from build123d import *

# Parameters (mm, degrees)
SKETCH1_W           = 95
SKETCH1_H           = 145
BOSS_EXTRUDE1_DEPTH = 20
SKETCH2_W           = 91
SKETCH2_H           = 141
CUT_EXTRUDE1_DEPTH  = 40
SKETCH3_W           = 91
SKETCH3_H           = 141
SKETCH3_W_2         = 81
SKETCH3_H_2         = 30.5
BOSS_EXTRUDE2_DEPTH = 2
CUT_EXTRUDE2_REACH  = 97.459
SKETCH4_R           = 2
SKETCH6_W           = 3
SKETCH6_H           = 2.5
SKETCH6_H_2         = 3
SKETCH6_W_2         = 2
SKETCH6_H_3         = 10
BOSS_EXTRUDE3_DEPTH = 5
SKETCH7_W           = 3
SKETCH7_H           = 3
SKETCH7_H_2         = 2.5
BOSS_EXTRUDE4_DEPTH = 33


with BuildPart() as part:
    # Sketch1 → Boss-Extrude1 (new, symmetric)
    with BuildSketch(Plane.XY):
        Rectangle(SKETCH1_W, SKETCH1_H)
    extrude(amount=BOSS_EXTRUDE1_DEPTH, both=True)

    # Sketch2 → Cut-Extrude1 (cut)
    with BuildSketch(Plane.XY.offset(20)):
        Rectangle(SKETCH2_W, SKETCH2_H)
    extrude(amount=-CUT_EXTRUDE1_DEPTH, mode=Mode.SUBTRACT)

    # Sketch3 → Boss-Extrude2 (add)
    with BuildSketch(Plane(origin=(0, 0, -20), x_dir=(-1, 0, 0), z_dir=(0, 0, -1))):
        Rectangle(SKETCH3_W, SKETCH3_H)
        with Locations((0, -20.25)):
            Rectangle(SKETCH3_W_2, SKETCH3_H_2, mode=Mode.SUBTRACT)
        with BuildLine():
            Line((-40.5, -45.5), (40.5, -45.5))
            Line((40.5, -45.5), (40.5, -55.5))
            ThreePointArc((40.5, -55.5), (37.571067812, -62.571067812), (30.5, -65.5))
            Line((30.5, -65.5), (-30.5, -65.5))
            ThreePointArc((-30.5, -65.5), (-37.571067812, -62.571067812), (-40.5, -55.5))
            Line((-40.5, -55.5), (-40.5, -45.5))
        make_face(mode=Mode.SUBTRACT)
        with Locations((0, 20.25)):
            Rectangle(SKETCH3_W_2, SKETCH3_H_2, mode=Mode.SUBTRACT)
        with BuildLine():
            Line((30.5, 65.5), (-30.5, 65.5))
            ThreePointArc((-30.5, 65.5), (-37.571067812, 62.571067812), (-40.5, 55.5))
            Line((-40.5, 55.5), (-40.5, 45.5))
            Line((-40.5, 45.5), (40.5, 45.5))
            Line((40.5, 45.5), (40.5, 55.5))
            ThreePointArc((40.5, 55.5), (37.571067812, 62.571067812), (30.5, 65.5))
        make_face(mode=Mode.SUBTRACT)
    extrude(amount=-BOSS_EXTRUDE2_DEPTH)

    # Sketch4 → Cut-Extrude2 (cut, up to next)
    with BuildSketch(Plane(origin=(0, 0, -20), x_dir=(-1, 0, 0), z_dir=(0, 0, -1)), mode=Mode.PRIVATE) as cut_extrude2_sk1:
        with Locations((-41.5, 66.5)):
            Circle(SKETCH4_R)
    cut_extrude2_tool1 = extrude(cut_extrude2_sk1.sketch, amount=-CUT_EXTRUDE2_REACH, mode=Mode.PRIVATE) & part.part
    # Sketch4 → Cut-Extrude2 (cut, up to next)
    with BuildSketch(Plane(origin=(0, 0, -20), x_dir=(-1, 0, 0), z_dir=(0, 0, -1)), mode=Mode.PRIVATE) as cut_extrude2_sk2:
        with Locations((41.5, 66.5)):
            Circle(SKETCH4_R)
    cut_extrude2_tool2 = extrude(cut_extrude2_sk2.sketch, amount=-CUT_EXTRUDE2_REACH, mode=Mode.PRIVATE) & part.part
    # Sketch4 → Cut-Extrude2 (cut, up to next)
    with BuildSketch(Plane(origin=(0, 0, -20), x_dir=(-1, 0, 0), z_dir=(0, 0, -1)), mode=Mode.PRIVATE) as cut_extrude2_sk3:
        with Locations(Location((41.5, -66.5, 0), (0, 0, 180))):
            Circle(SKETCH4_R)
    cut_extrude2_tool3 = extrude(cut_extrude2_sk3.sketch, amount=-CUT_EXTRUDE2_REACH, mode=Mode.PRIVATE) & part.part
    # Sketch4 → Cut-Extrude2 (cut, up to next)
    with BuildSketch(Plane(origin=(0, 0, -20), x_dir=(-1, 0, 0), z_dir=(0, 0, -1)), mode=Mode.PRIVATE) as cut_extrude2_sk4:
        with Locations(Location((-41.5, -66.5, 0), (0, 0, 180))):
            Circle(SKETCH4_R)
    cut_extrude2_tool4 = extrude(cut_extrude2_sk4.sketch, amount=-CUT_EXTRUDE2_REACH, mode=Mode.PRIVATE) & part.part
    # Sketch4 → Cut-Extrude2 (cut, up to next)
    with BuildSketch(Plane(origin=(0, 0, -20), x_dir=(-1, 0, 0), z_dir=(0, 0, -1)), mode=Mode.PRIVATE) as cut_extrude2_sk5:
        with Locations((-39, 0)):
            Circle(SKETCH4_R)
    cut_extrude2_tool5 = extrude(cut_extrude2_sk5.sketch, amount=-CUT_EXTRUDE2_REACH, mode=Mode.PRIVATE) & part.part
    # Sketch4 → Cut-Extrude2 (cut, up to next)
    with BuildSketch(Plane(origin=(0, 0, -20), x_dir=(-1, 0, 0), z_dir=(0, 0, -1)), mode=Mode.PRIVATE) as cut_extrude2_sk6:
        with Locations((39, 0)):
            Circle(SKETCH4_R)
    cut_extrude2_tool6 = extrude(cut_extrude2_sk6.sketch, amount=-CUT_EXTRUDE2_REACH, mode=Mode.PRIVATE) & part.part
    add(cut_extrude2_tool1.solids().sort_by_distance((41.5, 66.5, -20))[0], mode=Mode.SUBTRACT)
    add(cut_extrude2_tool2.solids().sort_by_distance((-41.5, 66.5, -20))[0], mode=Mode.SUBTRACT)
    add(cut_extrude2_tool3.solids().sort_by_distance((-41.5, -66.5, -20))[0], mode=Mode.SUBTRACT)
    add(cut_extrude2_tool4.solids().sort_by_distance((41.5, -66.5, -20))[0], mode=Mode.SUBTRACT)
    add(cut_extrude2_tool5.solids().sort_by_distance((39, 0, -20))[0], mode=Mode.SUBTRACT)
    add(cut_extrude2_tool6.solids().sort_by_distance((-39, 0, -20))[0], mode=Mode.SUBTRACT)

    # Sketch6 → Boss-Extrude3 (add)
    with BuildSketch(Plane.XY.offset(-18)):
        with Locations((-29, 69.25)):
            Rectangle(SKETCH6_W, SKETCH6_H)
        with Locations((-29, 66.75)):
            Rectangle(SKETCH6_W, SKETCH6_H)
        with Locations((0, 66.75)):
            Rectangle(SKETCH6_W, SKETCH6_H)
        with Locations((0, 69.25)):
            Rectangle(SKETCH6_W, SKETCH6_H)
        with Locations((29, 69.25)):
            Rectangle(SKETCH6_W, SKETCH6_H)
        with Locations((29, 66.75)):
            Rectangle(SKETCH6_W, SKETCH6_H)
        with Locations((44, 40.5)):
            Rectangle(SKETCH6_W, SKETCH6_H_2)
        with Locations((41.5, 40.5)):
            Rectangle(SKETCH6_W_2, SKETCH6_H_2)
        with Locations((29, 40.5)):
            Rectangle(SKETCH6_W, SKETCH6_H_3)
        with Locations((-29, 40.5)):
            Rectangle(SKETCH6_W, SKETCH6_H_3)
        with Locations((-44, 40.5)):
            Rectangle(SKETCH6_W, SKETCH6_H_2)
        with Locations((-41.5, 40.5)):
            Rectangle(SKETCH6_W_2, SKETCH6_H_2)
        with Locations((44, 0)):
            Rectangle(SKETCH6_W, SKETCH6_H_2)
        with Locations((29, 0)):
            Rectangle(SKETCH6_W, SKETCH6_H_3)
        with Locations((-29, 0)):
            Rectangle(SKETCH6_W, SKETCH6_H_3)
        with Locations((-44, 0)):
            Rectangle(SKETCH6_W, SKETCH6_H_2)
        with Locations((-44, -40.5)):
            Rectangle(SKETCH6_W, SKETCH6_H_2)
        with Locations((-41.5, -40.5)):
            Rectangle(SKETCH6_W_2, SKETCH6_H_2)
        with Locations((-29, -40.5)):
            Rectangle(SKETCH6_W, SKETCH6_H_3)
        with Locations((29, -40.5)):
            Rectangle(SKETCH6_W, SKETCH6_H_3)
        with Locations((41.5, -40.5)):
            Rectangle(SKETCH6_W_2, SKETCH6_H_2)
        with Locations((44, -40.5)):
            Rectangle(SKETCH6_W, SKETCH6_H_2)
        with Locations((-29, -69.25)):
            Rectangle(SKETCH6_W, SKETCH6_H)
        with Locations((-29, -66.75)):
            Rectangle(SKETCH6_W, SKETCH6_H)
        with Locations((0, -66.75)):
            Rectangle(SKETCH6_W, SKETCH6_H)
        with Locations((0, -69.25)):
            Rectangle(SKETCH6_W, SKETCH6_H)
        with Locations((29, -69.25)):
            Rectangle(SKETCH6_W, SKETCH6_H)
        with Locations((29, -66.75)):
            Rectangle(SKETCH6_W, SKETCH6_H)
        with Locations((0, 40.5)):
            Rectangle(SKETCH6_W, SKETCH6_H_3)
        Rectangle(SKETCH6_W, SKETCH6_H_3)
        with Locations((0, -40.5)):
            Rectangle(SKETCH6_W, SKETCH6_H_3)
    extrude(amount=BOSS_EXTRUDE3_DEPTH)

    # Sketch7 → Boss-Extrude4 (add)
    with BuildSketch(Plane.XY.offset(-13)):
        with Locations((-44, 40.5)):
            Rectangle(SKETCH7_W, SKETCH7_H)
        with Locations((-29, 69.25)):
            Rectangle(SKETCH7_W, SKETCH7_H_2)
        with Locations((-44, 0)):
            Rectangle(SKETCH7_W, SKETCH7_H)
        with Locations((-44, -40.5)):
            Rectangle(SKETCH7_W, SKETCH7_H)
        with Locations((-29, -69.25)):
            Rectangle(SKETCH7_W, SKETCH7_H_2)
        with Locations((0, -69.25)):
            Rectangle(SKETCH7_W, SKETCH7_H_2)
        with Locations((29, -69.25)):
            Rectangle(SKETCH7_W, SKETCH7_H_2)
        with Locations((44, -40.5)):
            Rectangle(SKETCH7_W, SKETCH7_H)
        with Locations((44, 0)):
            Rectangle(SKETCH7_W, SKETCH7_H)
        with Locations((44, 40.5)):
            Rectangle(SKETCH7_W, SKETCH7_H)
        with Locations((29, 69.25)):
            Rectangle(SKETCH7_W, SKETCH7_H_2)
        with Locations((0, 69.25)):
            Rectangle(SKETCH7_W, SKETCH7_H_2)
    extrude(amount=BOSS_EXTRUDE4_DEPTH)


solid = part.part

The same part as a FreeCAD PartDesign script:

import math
import FreeCAD as App
import Part
import Sketcher

V = App.Vector
Q = App.Units.Quantity

doc = App.newDocument("Part")
body = doc.addObject("PartDesign::Body", "Body")

# Sketch on XY plane
sketch1 = body.newObject("Sketcher::SketchObject", "Sketch")
sketch1.AttachmentSupport = (doc.getObject("XY_Plane"), [""])
sketch1.MapMode = "FlatFace"
sketch1.addGeometry([
    Part.LineSegment(V(-47.5, 72.5, 0), V(-47.5, -72.5, 0)),
    Part.LineSegment(V(-47.5, -72.5, 0), V(47.5, -72.5, 0)),
    Part.LineSegment(V(47.5, -72.5, 0), V(47.5, 72.5, 0)),
    Part.LineSegment(V(47.5, 72.5, 0), V(-47.5, 72.5, 0)),
], False)
sketch1.addConstraint([
    Sketcher.Constraint("Coincident", 0, 2, 1, 1),
    Sketcher.Constraint("Coincident", 1, 2, 2, 1),
    Sketcher.Constraint("Coincident", 2, 2, 3, 1),
    Sketcher.Constraint("Coincident", 3, 2, 0, 1),
    Sketcher.Constraint("Vertical", 0),
    Sketcher.Constraint("Horizontal", 1),
    Sketcher.Constraint("Vertical", 2),
    Sketcher.Constraint("Horizontal", 3),
    Sketcher.Constraint("Symmetric", 0, 2, 2, 2, -1, 1),
    Sketcher.Constraint("DistanceX", 1, 1, 1, 2, Q("95 mm")),
    Sketcher.Constraint("DistanceY", 0, 2, 0, 1, Q("145 mm")),
])
pad1 = body.newObject("PartDesign::Pad", "Pad")
pad1.Profile = sketch1
pad1.Length = 40
pad1.Midplane = True

# Sketch on XY plane
sketch2 = body.newObject("Sketcher::SketchObject", "Sketch001")
sketch2.AttachmentSupport = (doc.getObject("XY_Plane"), [""])
sketch2.MapMode = "FlatFace"
sketch2.AttachmentOffset = App.Placement(V(0, 0, 20), App.Rotation())
sketch2.addGeometry([
    Part.LineSegment(V(-45.5, 70.5, 0), V(-45.5, -70.5, 0)),
    Part.LineSegment(V(-45.5, -70.5, 0), V(45.5, -70.5, 0)),
    Part.LineSegment(V(45.5, -70.5, 0), V(45.5, 70.5, 0)),
    Part.LineSegment(V(45.5, 70.5, 0), V(-45.5, 70.5, 0)),
], False)
sketch2.addConstraint([
    Sketcher.Constraint("Coincident", 0, 2, 1, 1),
    Sketcher.Constraint("Coincident", 1, 2, 2, 1),
    Sketcher.Constraint("Coincident", 2, 2, 3, 1),
    Sketcher.Constraint("Coincident", 3, 2, 0, 1),
    Sketcher.Constraint("Vertical", 0),
    Sketcher.Constraint("Horizontal", 1),
    Sketcher.Constraint("Vertical", 2),
    Sketcher.Constraint("Horizontal", 3),
    Sketcher.Constraint("Symmetric", 0, 2, 2, 2, -1, 1),
    Sketcher.Constraint("DistanceX", 1, 1, 1, 2, Q("91 mm")),
    Sketcher.Constraint("DistanceY", 0, 2, 0, 1, Q("141 mm")),
])
pocket1 = body.newObject("PartDesign::Pocket", "Pocket")
pocket1.Profile = sketch2
pocket1.Length = 40

# Sketch on XY plane
sketch3 = body.newObject("Sketcher::SketchObject", "Sketch002")
sketch3.AttachmentSupport = (doc.getObject("XY_Plane"), [""])
sketch3.MapMode = "FlatFace"
sketch3.AttachmentOffset = App.Placement(V(0, 0, -20), App.Rotation())
sketch3.addGeometry([
    Part.LineSegment(V(45.5, 70.5, 0), V(45.5, -70.5, 0)),  # 0
    Part.LineSegment(V(45.5, -70.5, 0), V(-45.5, -70.5, 0)),  # 1
    Part.LineSegment(V(-45.5, -70.5, 0), V(-45.5, 70.5, 0)),  # 2
    Part.LineSegment(V(-45.5, 70.5, 0), V(45.5, 70.5, 0)),  # 3
    Part.LineSegment(V(40.5, -55.5, 0), V(40.5, -45.5, 0)),  # 4
    Part.LineSegment(V(40.5, -45.5, 0), V(-40.5, -45.5, 0)),  # 5
    Part.LineSegment(V(-40.5, -45.5, 0), V(-40.5, -55.5, 0)),  # 6
    Part.ArcOfCircle(Part.Circle(V(-30.5, -55.5, 0), V(0, 0, 1), 10), math.radians(180), math.radians(270)),  # 7
    Part.LineSegment(V(-30.5, -65.5, 0), V(30.5, -65.5, 0)),  # 8
    Part.ArcOfCircle(Part.Circle(V(30.5, -55.5, 0), V(0, 0, 1), 10), math.radians(-90), math.radians(0)),  # 9
    Part.LineSegment(V(-40.5, -35.5, 0), V(40.5, -35.5, 0)),  # 10
    Part.LineSegment(V(40.5, -35.5, 0), V(40.5, -5, 0)),  # 11
    Part.LineSegment(V(40.5, -5, 0), V(-40.5, -5, 0)),  # 12
    Part.LineSegment(V(-40.5, -5, 0), V(-40.5, -35.5, 0)),  # 13
    Part.LineSegment(V(-40.5, 5, 0), V(40.5, 5, 0)),  # 14
    Part.LineSegment(V(40.5, 5, 0), V(40.5, 35.5, 0)),  # 15
    Part.LineSegment(V(40.5, 35.5, 0), V(-40.5, 35.5, 0)),  # 16
    Part.LineSegment(V(-40.5, 35.5, 0), V(-40.5, 5, 0)),  # 17
    Part.LineSegment(V(30.5, 65.5, 0), V(-30.5, 65.5, 0)),  # 18
    Part.ArcOfCircle(Part.Circle(V(-30.5, 55.5, 0), V(0, 0, 1), 10), math.radians(90), math.radians(180)),  # 19
    Part.LineSegment(V(-40.5, 55.5, 0), V(-40.5, 45.5, 0)),  # 20
    Part.LineSegment(V(-40.5, 45.5, 0), V(40.5, 45.5, 0)),  # 21
    Part.LineSegment(V(40.5, 45.5, 0), V(40.5, 55.5, 0)),  # 22
    Part.ArcOfCircle(Part.Circle(V(30.5, 55.5, 0), V(0, 0, 1), 10), math.radians(0), math.radians(90)),  # 23
], False)
sketch3.addConstraint([
    Sketcher.Constraint("Coincident", 0, 2, 1, 1),
    Sketcher.Constraint("Coincident", 1, 2, 2, 1),
    Sketcher.Constraint("Coincident", 2, 2, 3, 1),
    Sketcher.Constraint("Coincident", 3, 2, 0, 1),
    Sketcher.Constraint("Coincident", 4, 2, 5, 1),
    Sketcher.Constraint("Coincident", 5, 2, 6, 1),
    Sketcher.Constraint("Tangent", 6, 2, 7, 1),
    Sketcher.Constraint("Tangent", 7, 2, 8, 1),
    Sketcher.Constraint("Tangent", 8, 2, 9, 1),
    Sketcher.Constraint("Tangent", 9, 2, 4, 1),
    Sketcher.Constraint("Coincident", 10, 2, 11, 1),
    Sketcher.Constraint("Coincident", 11, 2, 12, 1),
    Sketcher.Constraint("Coincident", 12, 2, 13, 1),
    Sketcher.Constraint("Coincident", 13, 2, 10, 1),
    Sketcher.Constraint("Coincident", 14, 2, 15, 1),
    Sketcher.Constraint("Coincident", 15, 2, 16, 1),
    Sketcher.Constraint("Coincident", 16, 2, 17, 1),
    Sketcher.Constraint("Coincident", 17, 2, 14, 1),
    Sketcher.Constraint("Tangent", 18, 2, 19, 1),
    Sketcher.Constraint("Tangent", 19, 2, 20, 1),
    Sketcher.Constraint("Coincident", 20, 2, 21, 1),
    Sketcher.Constraint("Coincident", 21, 2, 22, 1),
    Sketcher.Constraint("Tangent", 22, 2, 23, 1),
    Sketcher.Constraint("Tangent", 23, 2, 18, 1),
    Sketcher.Constraint("Vertical", 0),
    Sketcher.Constraint("Horizontal", 1),
    Sketcher.Constraint("Vertical", 2),
    Sketcher.Constraint("Horizontal", 3),
    Sketcher.Constraint("Vertical", 4),
    Sketcher.Constraint("Horizontal", 5),
    Sketcher.Constraint("Vertical", 6),
    Sketcher.Constraint("Horizontal", 8),
    Sketcher.Constraint("Horizontal", 10),
    Sketcher.Constraint("Vertical", 11),
    Sketcher.Constraint("Horizontal", 12),
    Sketcher.Constraint("Vertical", 13),
    Sketcher.Constraint("Horizontal", 14),
    Sketcher.Constraint("Vertical", 15),
    Sketcher.Constraint("Horizontal", 16),
    Sketcher.Constraint("Vertical", 17),
    Sketcher.Constraint("Horizontal", 18),
    Sketcher.Constraint("Vertical", 20),
    Sketcher.Constraint("Horizontal", 21),
    Sketcher.Constraint("Vertical", 22),
    Sketcher.Constraint("Equal", 7, 9),
    Sketcher.Constraint("Equal", 9, 19),
    Sketcher.Constraint("Equal", 19, 23),
    Sketcher.Constraint("Symmetric", 9, 3, 19, 3, -1, 1),
    Sketcher.Constraint("Symmetric", 0, 2, 2, 2, -1, 1),
    Sketcher.Constraint("Symmetric", 12, 2, 14, 2, -1, 1),
    Sketcher.Constraint("Symmetric", 10, 2, 16, 2, -1, 1),
    Sketcher.Constraint("Symmetric", 5, 2, 21, 2, -1, 1),
    Sketcher.Constraint("Vertical", 7, 3, 19, 3),
    Sketcher.Constraint("Vertical", 9, 2, 10, 2),
    Sketcher.Constraint("Vertical", 6, 2, 12, 2),
    Sketcher.Constraint("Radius", 7, Q("10 mm")),
    Sketcher.Constraint("DistanceX", 1, 2, 1, 1, Q("91 mm")),
    Sketcher.Constraint("DistanceX", 5, 2, 5, 1, Q("81 mm")),
    Sketcher.Constraint("DistanceY", 0, 2, 0, 1, Q("141 mm")),
    Sketcher.Constraint("DistanceY", 4, 1, 4, 2, Q("10 mm")),
    Sketcher.Constraint("DistanceY", 11, 1, 11, 2, Q("30.5 mm")),
    Sketcher.Constraint("DistanceY", 11, 2, -1, 1, Q("5 mm")),
    Sketcher.Constraint("DistanceY", 7, 3, 19, 3, Q("111 mm")),
])
pad2 = body.newObject("PartDesign::Pad", "Pad001")
pad2.Profile = sketch3
pad2.Length = 2

# Sketch on XY plane
sketch4 = body.newObject("Sketcher::SketchObject", "Sketch003")
sketch4.AttachmentSupport = (doc.getObject("XY_Plane"), [""])
sketch4.MapMode = "FlatFace"
sketch4.AttachmentOffset = App.Placement(V(0, 0, -20), App.Rotation())
sketch4.addGeometry(Part.Circle(V(41.5, 66.5, 0), V(0, 0, 1), 2), False)
sketch4.addConstraint([
    Sketcher.Constraint("Diameter", 0, Q("4 mm")),
    Sketcher.Constraint("DistanceX", -1, 1, 0, 3, Q("41.5 mm")),
    Sketcher.Constraint("DistanceY", -1, 1, 0, 3, Q("66.5 mm")),
])
pocket2 = body.newObject("PartDesign::Pocket", "Pocket001")
pocket2.Profile = sketch4
pocket2.Type = "UpToFirst"
pocket2.Reversed = True

# Sketch on XY plane
sketch5 = body.newObject("Sketcher::SketchObject", "Sketch004")
sketch5.AttachmentSupport = (doc.getObject("XY_Plane"), [""])
sketch5.MapMode = "FlatFace"
sketch5.AttachmentOffset = App.Placement(V(0, 0, -20), App.Rotation())
sketch5.addGeometry(Part.Circle(V(-41.5, 66.5, 0), V(0, 0, 1), 2), False)
sketch5.addConstraint([
    Sketcher.Constraint("Diameter", 0, Q("4 mm")),
    Sketcher.Constraint("DistanceX", 0, 3, -1, 1, Q("41.5 mm")),
    Sketcher.Constraint("DistanceY", -1, 1, 0, 3, Q("66.5 mm")),
])
pocket3 = body.newObject("PartDesign::Pocket", "Pocket002")
pocket3.Profile = sketch5
pocket3.Type = "UpToFirst"
pocket3.Reversed = True

# Sketch on XY plane
sketch6 = body.newObject("Sketcher::SketchObject", "Sketch005")
sketch6.AttachmentSupport = (doc.getObject("XY_Plane"), [""])
sketch6.MapMode = "FlatFace"
sketch6.AttachmentOffset = App.Placement(V(0, 0, -20), App.Rotation())
sketch6.addGeometry(Part.Circle(V(-41.5, -66.5, 0), V(0, 0, 1), 2), False)
sketch6.addConstraint([
    Sketcher.Constraint("Diameter", 0, Q("4 mm")),
    Sketcher.Constraint("DistanceX", 0, 3, -1, 1, Q("41.5 mm")),
    Sketcher.Constraint("DistanceY", 0, 3, -1, 1, Q("66.5 mm")),
])
pocket4 = body.newObject("PartDesign::Pocket", "Pocket003")
pocket4.Profile = sketch6
pocket4.Type = "UpToFirst"
pocket4.Reversed = True

# Sketch on XY plane
sketch7 = body.newObject("Sketcher::SketchObject", "Sketch006")
sketch7.AttachmentSupport = (doc.getObject("XY_Plane"), [""])
sketch7.MapMode = "FlatFace"
sketch7.AttachmentOffset = App.Placement(V(0, 0, -20), App.Rotation())
sketch7.addGeometry(Part.Circle(V(41.5, -66.5, 0), V(0, 0, 1), 2), False)
sketch7.addConstraint([
    Sketcher.Constraint("Diameter", 0, Q("4 mm")),
    Sketcher.Constraint("DistanceX", -1, 1, 0, 3, Q("41.5 mm")),
    Sketcher.Constraint("DistanceY", 0, 3, -1, 1, Q("66.5 mm")),
])
pocket5 = body.newObject("PartDesign::Pocket", "Pocket004")
pocket5.Profile = sketch7
pocket5.Type = "UpToFirst"
pocket5.Reversed = True

# Sketch on XY plane
sketch8 = body.newObject("Sketcher::SketchObject", "Sketch007")
sketch8.AttachmentSupport = (doc.getObject("XY_Plane"), [""])
sketch8.MapMode = "FlatFace"
sketch8.AttachmentOffset = App.Placement(V(0, 0, -20), App.Rotation())
sketch8.addGeometry(Part.Circle(V(39, 0, 0), V(0, 0, 1), 2), False)
sketch8.addConstraint([
    Sketcher.Constraint("PointOnObject", 0, 3, -1),
    Sketcher.Constraint("Diameter", 0, Q("4 mm")),
    Sketcher.Constraint("DistanceX", -1, 1, 0, 3, Q("39 mm")),
])
pocket6 = body.newObject("PartDesign::Pocket", "Pocket005")
pocket6.Profile = sketch8
pocket6.Type = "UpToFirst"
pocket6.Reversed = True

# Sketch on XY plane
sketch9 = body.newObject("Sketcher::SketchObject", "Sketch008")
sketch9.AttachmentSupport = (doc.getObject("XY_Plane"), [""])
sketch9.MapMode = "FlatFace"
sketch9.AttachmentOffset = App.Placement(V(0, 0, -20), App.Rotation())
sketch9.addGeometry(Part.Circle(V(-39, 0, 0), V(0, 0, 1), 2), False)
sketch9.addConstraint([
    Sketcher.Constraint("PointOnObject", 0, 3, -1),
    Sketcher.Constraint("Diameter", 0, Q("4 mm")),
    Sketcher.Constraint("DistanceX", 0, 3, -1, 1, Q("39 mm")),
])
pocket7 = body.newObject("PartDesign::Pocket", "Pocket006")
pocket7.Profile = sketch9
pocket7.Type = "UpToFirst"
pocket7.Reversed = True

# Sketch on XY plane
sketch10 = body.newObject("Sketcher::SketchObject", "Sketch009")
sketch10.AttachmentSupport = (doc.getObject("XY_Plane"), [""])
sketch10.MapMode = "FlatFace"
sketch10.AttachmentOffset = App.Placement(V(0, 0, -18), App.Rotation())
sketch10.addGeometry([
    Part.LineSegment(V(-30.5, 70.5, 0), V(-30.5, 65.5, 0)),  # 0
    Part.LineSegment(V(-30.5, 65.5, 0), V(-27.5, 65.5, 0)),  # 1
    Part.LineSegment(V(-27.5, 65.5, 0), V(-27.5, 70.5, 0)),  # 2
    Part.LineSegment(V(-27.5, 70.5, 0), V(-30.5, 70.5, 0)),  # 3
    Part.LineSegment(V(-1.5, 65.5, 0), V(1.5, 65.5, 0)),  # 4
    Part.LineSegment(V(1.5, 65.5, 0), V(1.5, 70.5, 0)),  # 5
    Part.LineSegment(V(1.5, 70.5, 0), V(-1.5, 70.5, 0)),  # 6
    Part.LineSegment(V(-1.5, 70.5, 0), V(-1.5, 65.5, 0)),  # 7
    Part.LineSegment(V(27.5, 70.5, 0), V(27.5, 65.5, 0)),  # 8
    Part.LineSegment(V(27.5, 65.5, 0), V(30.5, 65.5, 0)),  # 9
    Part.LineSegment(V(30.5, 65.5, 0), V(30.5, 70.5, 0)),  # 10
    Part.LineSegment(V(30.5, 70.5, 0), V(27.5, 70.5, 0)),  # 11
    Part.LineSegment(V(45.5, 39, 0), V(45.5, 42, 0)),  # 12
    Part.LineSegment(V(45.5, 42, 0), V(40.5, 42, 0)),  # 13
    Part.LineSegment(V(40.5, 42, 0), V(40.5, 39, 0)),  # 14
    Part.LineSegment(V(40.5, 39, 0), V(45.5, 39, 0)),  # 15
    Part.LineSegment(V(27.5, 45.5, 0), V(27.5, 35.5, 0)),  # 16
    Part.LineSegment(V(27.5, 35.5, 0), V(30.5, 35.5, 0)),  # 17
    Part.LineSegment(V(30.5, 35.5, 0), V(30.5, 45.5, 0)),  # 18
    Part.LineSegment(V(30.5, 45.5, 0), V(27.5, 45.5, 0)),  # 19
    Part.LineSegment(V(-30.5, 45.5, 0), V(-30.5, 35.5, 0)),  # 20
    Part.LineSegment(V(-30.5, 35.5, 0), V(-27.5, 35.5, 0)),  # 21
    Part.LineSegment(V(-27.5, 35.5, 0), V(-27.5, 45.5, 0)),  # 22
    Part.LineSegment(V(-27.5, 45.5, 0), V(-30.5, 45.5, 0)),  # 23
    Part.LineSegment(V(-45.5, 42, 0), V(-45.5, 39, 0)),  # 24
    Part.LineSegment(V(-45.5, 39, 0), V(-40.5, 39, 0)),  # 25
    Part.LineSegment(V(-40.5, 39, 0), V(-40.5, 42, 0)),  # 26
    Part.LineSegment(V(-40.5, 42, 0), V(-45.5, 42, 0)),  # 27
    Part.LineSegment(V(42.5, 1.5, 0), V(42.5, -1.5, 0)),  # 28
    Part.LineSegment(V(42.5, -1.5, 0), V(45.5, -1.5, 0)),  # 29
    Part.LineSegment(V(45.5, -1.5, 0), V(45.5, 1.5, 0)),  # 30
    Part.LineSegment(V(45.5, 1.5, 0), V(42.5, 1.5, 0)),  # 31
    Part.LineSegment(V(27.5, 5, 0), V(27.5, -5, 0)),  # 32
    Part.LineSegment(V(27.5, -5, 0), V(30.5, -5, 0)),  # 33
    Part.LineSegment(V(30.5, -5, 0), V(30.5, 5, 0)),  # 34
    Part.LineSegment(V(30.5, 5, 0), V(27.5, 5, 0)),  # 35
    Part.LineSegment(V(-30.5, 5, 0), V(-30.5, -5, 0)),  # 36
    Part.LineSegment(V(-30.5, -5, 0), V(-27.5, -5, 0)),  # 37
    Part.LineSegment(V(-27.5, -5, 0), V(-27.5, 5, 0)),  # 38
    Part.LineSegment(V(-27.5, 5, 0), V(-30.5, 5, 0)),  # 39
    Part.LineSegment(V(-45.5, 1.5, 0), V(-45.5, -1.5, 0)),  # 40
    Part.LineSegment(V(-45.5, -1.5, 0), V(-42.5, -1.5, 0)),  # 41
    Part.LineSegment(V(-42.5, -1.5, 0), V(-42.5, 1.5, 0)),  # 42
    Part.LineSegment(V(-42.5, 1.5, 0), V(-45.5, 1.5, 0)),  # 43
    Part.LineSegment(V(-45.5, -39, 0), V(-45.5, -42, 0)),  # 44
    Part.LineSegment(V(-45.5, -42, 0), V(-40.5, -42, 0)),  # 45
    Part.LineSegment(V(-40.5, -42, 0), V(-40.5, -39, 0)),  # 46
    Part.LineSegment(V(-40.5, -39, 0), V(-45.5, -39, 0)),  # 47
    Part.LineSegment(V(-30.5, -35.5, 0), V(-30.5, -45.5, 0)),  # 48
    Part.LineSegment(V(-30.5, -45.5, 0), V(-27.5, -45.5, 0)),  # 49
    Part.LineSegment(V(-27.5, -45.5, 0), V(-27.5, -35.5, 0)),  # 50
    Part.LineSegment(V(-27.5, -35.5, 0), V(-30.5, -35.5, 0)),  # 51
    Part.LineSegment(V(27.5, -35.5, 0), V(27.5, -45.5, 0)),  # 52
    Part.LineSegment(V(27.5, -45.5, 0), V(30.5, -45.5, 0)),  # 53
    Part.LineSegment(V(30.5, -45.5, 0), V(30.5, -35.5, 0)),  # 54
    Part.LineSegment(V(30.5, -35.5, 0), V(27.5, -35.5, 0)),  # 55
    Part.LineSegment(V(40.5, -39, 0), V(40.5, -42, 0)),  # 56
    Part.LineSegment(V(40.5, -42, 0), V(45.5, -42, 0)),  # 57
    Part.LineSegment(V(45.5, -42, 0), V(45.5, -39, 0)),  # 58
    Part.LineSegment(V(45.5, -39, 0), V(40.5, -39, 0)),  # 59
    Part.LineSegment(V(-30.5, -70.5, 0), V(-27.5, -70.5, 0)),  # 60
    Part.LineSegment(V(-27.5, -70.5, 0), V(-27.5, -65.5, 0)),  # 61
    Part.LineSegment(V(-27.5, -65.5, 0), V(-30.5, -65.5, 0)),  # 62
    Part.LineSegment(V(-30.5, -65.5, 0), V(-30.5, -70.5, 0)),  # 63
    Part.LineSegment(V(-1.5, -65.5, 0), V(-1.5, -70.5, 0)),  # 64
    Part.LineSegment(V(-1.5, -70.5, 0), V(1.5, -70.5, 0)),  # 65
    Part.LineSegment(V(1.5, -70.5, 0), V(1.5, -65.5, 0)),  # 66
    Part.LineSegment(V(1.5, -65.5, 0), V(-1.5, -65.5, 0)),  # 67
    Part.LineSegment(V(27.5, -70.5, 0), V(30.5, -70.5, 0)),  # 68
    Part.LineSegment(V(30.5, -70.5, 0), V(30.5, -65.5, 0)),  # 69
    Part.LineSegment(V(30.5, -65.5, 0), V(27.5, -65.5, 0)),  # 70
    Part.LineSegment(V(27.5, -65.5, 0), V(27.5, -70.5, 0)),  # 71
    Part.LineSegment(V(-1.5, 45.5, 0), V(-1.5, 35.5, 0)),  # 72
    Part.LineSegment(V(-1.5, 35.5, 0), V(1.5, 35.5, 0)),  # 73
    Part.LineSegment(V(1.5, 35.5, 0), V(1.5, 45.5, 0)),  # 74
    Part.LineSegment(V(1.5, 45.5, 0), V(-1.5, 45.5, 0)),  # 75
    Part.LineSegment(V(-1.5, 5, 0), V(-1.5, -5, 0)),  # 76
    Part.LineSegment(V(-1.5, -5, 0), V(1.5, -5, 0)),  # 77
    Part.LineSegment(V(1.5, -5, 0), V(1.5, 5, 0)),  # 78
    Part.LineSegment(V(1.5, 5, 0), V(-1.5, 5, 0)),  # 79
    Part.LineSegment(V(-1.5, -35.5, 0), V(-1.5, -45.5, 0)),  # 80
    Part.LineSegment(V(-1.5, -45.5, 0), V(1.5, -45.5, 0)),  # 81
    Part.LineSegment(V(1.5, -45.5, 0), V(1.5, -35.5, 0)),  # 82
    Part.LineSegment(V(1.5, -35.5, 0), V(-1.5, -35.5, 0)),  # 83
], False)
sketch10.addConstraint([
    Sketcher.Constraint("Coincident", 0, 2, 1, 1),
    Sketcher.Constraint("Coincident", 1, 2, 2, 1),
    Sketcher.Constraint("Coincident", 2, 2, 3, 1),
    Sketcher.Constraint("Coincident", 3, 2, 0, 1),
    Sketcher.Constraint("Coincident", 4, 2, 5, 1),
    Sketcher.Constraint("Coincident", 5, 2, 6, 1),
    Sketcher.Constraint("Coincident", 6, 2, 7, 1),
    Sketcher.Constraint("Coincident", 7, 2, 4, 1),
    Sketcher.Constraint("Coincident", 8, 2, 9, 1),
    Sketcher.Constraint("Coincident", 9, 2, 10, 1),
    Sketcher.Constraint("Coincident", 10, 2, 11, 1),
    Sketcher.Constraint("Coincident", 11, 2, 8, 1),
    Sketcher.Constraint("Coincident", 12, 2, 13, 1),
    Sketcher.Constraint("Coincident", 13, 2, 14, 1),
    Sketcher.Constraint("Coincident", 14, 2, 15, 1),
    Sketcher.Constraint("Coincident", 15, 2, 12, 1),
    Sketcher.Constraint("Coincident", 16, 2, 17, 1),
    Sketcher.Constraint("Coincident", 17, 2, 18, 1),
    Sketcher.Constraint("Coincident", 18, 2, 19, 1),
    Sketcher.Constraint("Coincident", 19, 2, 16, 1),
    Sketcher.Constraint("Coincident", 20, 2, 21, 1),
    Sketcher.Constraint("Coincident", 21, 2, 22, 1),
    Sketcher.Constraint("Coincident", 22, 2, 23, 1),
    Sketcher.Constraint("Coincident", 23, 2, 20, 1),
    Sketcher.Constraint("Coincident", 24, 2, 25, 1),
    Sketcher.Constraint("Coincident", 25, 2, 26, 1),
    Sketcher.Constraint("Coincident", 26, 2, 27, 1),
    Sketcher.Constraint("Coincident", 27, 2, 24, 1),
    Sketcher.Constraint("Coincident", 28, 2, 29, 1),
    Sketcher.Constraint("Coincident", 29, 2, 30, 1),
    Sketcher.Constraint("Coincident", 30, 2, 31, 1),
    Sketcher.Constraint("Coincident", 31, 2, 28, 1),
    Sketcher.Constraint("Coincident", 32, 2, 33, 1),
    Sketcher.Constraint("Coincident", 33, 2, 34, 1),
    Sketcher.Constraint("Coincident", 34, 2, 35, 1),
    Sketcher.Constraint("Coincident", 35, 2, 32, 1),
    Sketcher.Constraint("Coincident", 36, 2, 37, 1),
    Sketcher.Constraint("Coincident", 37, 2, 38, 1),
    Sketcher.Constraint("Coincident", 38, 2, 39, 1),
    Sketcher.Constraint("Coincident", 39, 2, 36, 1),
    Sketcher.Constraint("Coincident", 40, 2, 41, 1),
    Sketcher.Constraint("Coincident", 41, 2, 42, 1),
    Sketcher.Constraint("Coincident", 42, 2, 43, 1),
    Sketcher.Constraint("Coincident", 43, 2, 40, 1),
    Sketcher.Constraint("Coincident", 44, 2, 45, 1),
    Sketcher.Constraint("Coincident", 45, 2, 46, 1),
    Sketcher.Constraint("Coincident", 46, 2, 47, 1),
    Sketcher.Constraint("Coincident", 47, 2, 44, 1),
    Sketcher.Constraint("Coincident", 48, 2, 49, 1),
    Sketcher.Constraint("Coincident", 49, 2, 50, 1),
    Sketcher.Constraint("Coincident", 50, 2, 51, 1),
    Sketcher.Constraint("Coincident", 51, 2, 48, 1),
    Sketcher.Constraint("Coincident", 52, 2, 53, 1),
    Sketcher.Constraint("Coincident", 53, 2, 54, 1),
    Sketcher.Constraint("Coincident", 54, 2, 55, 1),
    Sketcher.Constraint("Coincident", 55, 2, 52, 1),
    Sketcher.Constraint("Coincident", 56, 2, 57, 1),
    Sketcher.Constraint("Coincident", 57, 2, 58, 1),
    Sketcher.Constraint("Coincident", 58, 2, 59, 1),
    Sketcher.Constraint("Coincident", 59, 2, 56, 1),
    Sketcher.Constraint("Coincident", 60, 2, 61, 1),
    Sketcher.Constraint("Coincident", 61, 2, 62, 1),
    Sketcher.Constraint("Coincident", 62, 2, 63, 1),
    Sketcher.Constraint("Coincident", 63, 2, 60, 1),
    Sketcher.Constraint("Coincident", 64, 2, 65, 1),
    Sketcher.Constraint("Coincident", 65, 2, 66, 1),
    Sketcher.Constraint("Coincident", 66, 2, 67, 1),
    Sketcher.Constraint("Coincident", 67, 2, 64, 1),
    Sketcher.Constraint("Coincident", 68, 2, 69, 1),
    Sketcher.Constraint("Coincident", 69, 2, 70, 1),
    Sketcher.Constraint("Coincident", 70, 2, 71, 1),
    Sketcher.Constraint("Coincident", 71, 2, 68, 1),
    Sketcher.Constraint("Coincident", 72, 2, 73, 1),
    Sketcher.Constraint("Coincident", 73, 2, 74, 1),
    Sketcher.Constraint("Coincident", 74, 2, 75, 1),
    Sketcher.Constraint("Coincident", 75, 2, 72, 1),
    Sketcher.Constraint("Coincident", 76, 2, 77, 1),
    Sketcher.Constraint("Coincident", 77, 2, 78, 1),
    Sketcher.Constraint("Coincident", 78, 2, 79, 1),
    Sketcher.Constraint("Coincident", 79, 2, 76, 1),
    Sketcher.Constraint("Coincident", 80, 2, 81, 1),
    Sketcher.Constraint("Coincident", 81, 2, 82, 1),
    Sketcher.Constraint("Coincident", 82, 2, 83, 1),
    Sketcher.Constraint("Coincident", 83, 2, 80, 1),
    Sketcher.Constraint("Vertical", 0),
    Sketcher.Constraint("Horizontal", 1),
    Sketcher.Constraint("Vertical", 2),
    Sketcher.Constraint("Horizontal", 3),
    Sketcher.Constraint("Horizontal", 4),
    Sketcher.Constraint("Vertical", 5),
    Sketcher.Constraint("Horizontal", 6),
    Sketcher.Constraint("Vertical", 7),
    Sketcher.Constraint("Vertical", 8),
    Sketcher.Constraint("Horizontal", 9),
    Sketcher.Constraint("Vertical", 10),
    Sketcher.Constraint("Horizontal", 11),
    Sketcher.Constraint("Vertical", 12),
    Sketcher.Constraint("Horizontal", 13),
    Sketcher.Constraint("Vertical", 14),
    Sketcher.Constraint("Horizontal", 15),
    Sketcher.Constraint("Vertical", 16),
    Sketcher.Constraint("Horizontal", 17),
    Sketcher.Constraint("Vertical", 18),
    Sketcher.Constraint("Horizontal", 19),
    Sketcher.Constraint("Vertical", 20),
    Sketcher.Constraint("Horizontal", 21),
    Sketcher.Constraint("Vertical", 22),
    Sketcher.Constraint("Horizontal", 23),
    Sketcher.Constraint("Vertical", 24),
    Sketcher.Constraint("Horizontal", 25),
    Sketcher.Constraint("Vertical", 26),
    Sketcher.Constraint("Horizontal", 27),
    Sketcher.Constraint("Vertical", 28),
    Sketcher.Constraint("Horizontal", 29),
    Sketcher.Constraint("Vertical", 30),
    Sketcher.Constraint("Horizontal", 31),
    Sketcher.Constraint("Vertical", 32),
    Sketcher.Constraint("Horizontal", 33),
    Sketcher.Constraint("Vertical", 34),
    Sketcher.Constraint("Horizontal", 35),
    Sketcher.Constraint("Vertical", 36),
    Sketcher.Constraint("Horizontal", 37),
    Sketcher.Constraint("Vertical", 38),
    Sketcher.Constraint("Horizontal", 39),
    Sketcher.Constraint("Vertical", 40),
    Sketcher.Constraint("Horizontal", 41),
    Sketcher.Constraint("Vertical", 42),
    Sketcher.Constraint("Horizontal", 43),
    Sketcher.Constraint("Vertical", 44),
    Sketcher.Constraint("Horizontal", 45),
    Sketcher.Constraint("Vertical", 46),
    Sketcher.Constraint("Horizontal", 47),
    Sketcher.Constraint("Vertical", 48),
    Sketcher.Constraint("Horizontal", 49),
    Sketcher.Constraint("Vertical", 50),
    Sketcher.Constraint("Horizontal", 51),
    Sketcher.Constraint("Vertical", 52),
    Sketcher.Constraint("Horizontal", 53),
    Sketcher.Constraint("Vertical", 54),
    Sketcher.Constraint("Horizontal", 55),
    Sketcher.Constraint("Vertical", 56),
    Sketcher.Constraint("Horizontal", 57),
    Sketcher.Constraint("Vertical", 58),
    Sketcher.Constraint("Horizontal", 59),
    Sketcher.Constraint("Horizontal", 60),
    Sketcher.Constraint("Vertical", 61),
    Sketcher.Constraint("Horizontal", 62),
    Sketcher.Constraint("Vertical", 63),
    Sketcher.Constraint("Vertical", 64),
    Sketcher.Constraint("Horizontal", 65),
    Sketcher.Constraint("Vertical", 66),
    Sketcher.Constraint("Horizontal", 67),
    Sketcher.Constraint("Horizontal", 68),
    Sketcher.Constraint("Vertical", 69),
    Sketcher.Constraint("Horizontal", 70),
    Sketcher.Constraint("Vertical", 71),
    Sketcher.Constraint("Vertical", 72),
    Sketcher.Constraint("Horizontal", 73),
    Sketcher.Constraint("Vertical", 74),
    Sketcher.Constraint("Horizontal", 75),
    Sketcher.Constraint("Vertical", 76),
    Sketcher.Constraint("Horizontal", 77),
    Sketcher.Constraint("Vertical", 78),
    Sketcher.Constraint("Horizontal", 79),
    Sketcher.Constraint("Vertical", 80),
    Sketcher.Constraint("Horizontal", 81),
    Sketcher.Constraint("Vertical", 82),
    Sketcher.Constraint("Horizontal", 83),
    Sketcher.Constraint("Symmetric", 34, 2, 36, 2, -1, 1),
    Sketcher.Constraint("Symmetric", 32, 2, 38, 2, -1, 1),
    Sketcher.Constraint("Symmetric", 30, 2, 40, 2, -1, 1),
    Sketcher.Constraint("Symmetric", 28, 2, 42, 2, -1, 1),
    Sketcher.Constraint("Symmetric", 12, 2, 44, 2, -1, 1),
    Sketcher.Constraint("Symmetric", 14, 2, 46, 2, -1, 1),
    Sketcher.Constraint("Symmetric", 18, 2, 48, 2, -1, 1),
    Sketcher.Constraint("Symmetric", 16, 2, 50, 2, -1, 1),
    Sketcher.Constraint("Symmetric", 22, 2, 52, 2, -1, 1),
    Sketcher.Constraint("Symmetric", 20, 2, 54, 2, -1, 1),
    Sketcher.Constraint("Symmetric", 26, 2, 56, 2, -1, 1),
    Sketcher.Constraint("Symmetric", 24, 2, 58, 2, -1, 1),
    Sketcher.Constraint("Symmetric", 11, 2, 60, 2, -1, 1),
    Sketcher.Constraint("Symmetric", 9, 2, 62, 2, -1, 1),
    Sketcher.Constraint("Symmetric", 5, 2, 64, 2, -1, 1),
    Sketcher.Constraint("Symmetric", 7, 2, 66, 2, -1, 1),
    Sketcher.Constraint("Symmetric", 3, 2, 68, 2, -1, 1),
    Sketcher.Constraint("Symmetric", 1, 2, 70, 2, -1, 1),
    Sketcher.Constraint("Symmetric", 76, 2, 78, 2, -1, 1),
    Sketcher.Constraint("Symmetric", 74, 2, 80, 2, -1, 1),
    Sketcher.Constraint("Symmetric", 72, 2, 82, 2, -1, 1),
    Sketcher.Constraint("Symmetric", 1, 2, 8, 2, -2),
    Sketcher.Constraint("Symmetric", 3, 2, 10, 2, -2),
    Sketcher.Constraint("Symmetric", 17, 2, 20, 2, -2),
    Sketcher.Constraint("Symmetric", 19, 2, 22, 2, -2),
    Sketcher.Constraint("Symmetric", 15, 2, 24, 2, -2),
    Sketcher.Constraint("Symmetric", 13, 2, 26, 2, -2),
    Sketcher.Constraint("Horizontal", 1, 2, 4, 2),
    Sketcher.Constraint("Horizontal", 3, 2, 5, 2),
    Sketcher.Constraint("Horizontal", 33, 2, 36, 2),
    Sketcher.Constraint("Horizontal", 29, 2, 40, 2),
    Sketcher.Constraint("Horizontal", 21, 2, 72, 2),
    Sketcher.Constraint("Horizontal", 23, 2, 74, 2),
    Sketcher.Constraint("Horizontal", 37, 2, 76, 2),
    Sketcher.Constraint("Vertical", 11, 2, 16, 2),
    Sketcher.Constraint("Vertical", 10, 2, 17, 2),
    Sketcher.Constraint("Vertical", 15, 2, 29, 2),
    Sketcher.Constraint("Vertical", 19, 2, 32, 2),
    Sketcher.Constraint("Vertical", 18, 2, 33, 2),
    Sketcher.Constraint("Vertical", 7, 2, 64, 2),
    Sketcher.Constraint("Vertical", 67, 2, 72, 2),
    Sketcher.Constraint("Vertical", 66, 2, 73, 2),
    Sketcher.Constraint("Vertical", 75, 2, 76, 2),
    Sketcher.Constraint("Equal", 3, 4),
    Sketcher.Constraint("Equal", 23, 29),
    Sketcher.Constraint("Equal", 59, 0),
    Sketcher.Constraint("Equal", 83, 12),
    Sketcher.Constraint("Equal", 26, 28),
    Sketcher.Constraint("Equal", 22, 32),
    Sketcher.Constraint("DistanceX", 1, 1, 1, 2, Q("3 mm")),
    Sketcher.Constraint("DistanceX", 13, 2, 13, 1, Q("5 mm")),
    Sketcher.Constraint("DistanceY", 16, 2, 16, 1, Q("10 mm")),
    Sketcher.Constraint("DistanceY", -1, 1, 12, 2, Q("42 mm")),
    Sketcher.Constraint("DistanceX", 0, 2, -1, 1, Q("30.5 mm")),
    Sketcher.Constraint("DistanceY", -1, 1, 0, 2, Q("65.5 mm")),
    Sketcher.Constraint("DistanceX", -1, 1, 12, 2, Q("45.5 mm")),
    Sketcher.Constraint("DistanceY", -1, 1, 16, 2, Q("35.5 mm")),
])
pad3 = body.newObject("PartDesign::Pad", "Pad002")
pad3.Profile = sketch10
pad3.Length = 5

# Sketch on XY plane
sketch11 = body.newObject("Sketcher::SketchObject", "Sketch010")
sketch11.AttachmentSupport = (doc.getObject("XY_Plane"), [""])
sketch11.MapMode = "FlatFace"
sketch11.AttachmentOffset = App.Placement(V(0, 0, -13), App.Rotation())
sketch11.addGeometry([
    Part.LineSegment(V(-45.5, 42, 0), V(-45.5, 39, 0)),  # 0
    Part.LineSegment(V(-45.5, 39, 0), V(-42.5, 39, 0)),  # 1
    Part.LineSegment(V(-42.5, 39, 0), V(-42.5, 42, 0)),  # 2
    Part.LineSegment(V(-42.5, 42, 0), V(-45.5, 42, 0)),  # 3
    Part.LineSegment(V(-30.5, 70.5, 0), V(-30.5, 68, 0)),  # 4
    Part.LineSegment(V(-30.5, 68, 0), V(-27.5, 68, 0)),  # 5
    Part.LineSegment(V(-27.5, 68, 0), V(-27.5, 70.5, 0)),  # 6
    Part.LineSegment(V(-27.5, 70.5, 0), V(-30.5, 70.5, 0)),  # 7
    Part.LineSegment(V(-45.5, 1.5, 0), V(-45.5, -1.5, 0)),  # 8
    Part.LineSegment(V(-45.5, -1.5, 0), V(-42.5, -1.5, 0)),  # 9
    Part.LineSegment(V(-42.5, -1.5, 0), V(-42.5, 1.5, 0)),  # 10
    Part.LineSegment(V(-42.5, 1.5, 0), V(-45.5, 1.5, 0)),  # 11
    Part.LineSegment(V(-45.5, -39, 0), V(-45.5, -42, 0)),  # 12
    Part.LineSegment(V(-45.5, -42, 0), V(-42.5, -42, 0)),  # 13
    Part.LineSegment(V(-42.5, -42, 0), V(-42.5, -39, 0)),  # 14
    Part.LineSegment(V(-42.5, -39, 0), V(-45.5, -39, 0)),  # 15
    Part.LineSegment(V(-30.5, -68, 0), V(-30.5, -70.5, 0)),  # 16
    Part.LineSegment(V(-30.5, -70.5, 0), V(-27.5, -70.5, 0)),  # 17
    Part.LineSegment(V(-27.5, -70.5, 0), V(-27.5, -68, 0)),  # 18
    Part.LineSegment(V(-27.5, -68, 0), V(-30.5, -68, 0)),  # 19
    Part.LineSegment(V(-1.5, -68, 0), V(-1.5, -70.5, 0)),  # 20
    Part.LineSegment(V(-1.5, -70.5, 0), V(1.5, -70.5, 0)),  # 21
    Part.LineSegment(V(1.5, -70.5, 0), V(1.5, -68, 0)),  # 22
    Part.LineSegment(V(1.5, -68, 0), V(-1.5, -68, 0)),  # 23
    Part.LineSegment(V(27.5, -68, 0), V(27.5, -70.5, 0)),  # 24
    Part.LineSegment(V(27.5, -70.5, 0), V(30.5, -70.5, 0)),  # 25
    Part.LineSegment(V(30.5, -70.5, 0), V(30.5, -68, 0)),  # 26
    Part.LineSegment(V(30.5, -68, 0), V(27.5, -68, 0)),  # 27
    Part.LineSegment(V(42.5, -39, 0), V(42.5, -42, 0)),  # 28
    Part.LineSegment(V(42.5, -42, 0), V(45.5, -42, 0)),  # 29
    Part.LineSegment(V(45.5, -42, 0), V(45.5, -39, 0)),  # 30
    Part.LineSegment(V(45.5, -39, 0), V(42.5, -39, 0)),  # 31
    Part.LineSegment(V(42.5, 1.5, 0), V(42.5, -1.5, 0)),  # 32
    Part.LineSegment(V(42.5, -1.5, 0), V(45.5, -1.5, 0)),  # 33
    Part.LineSegment(V(45.5, -1.5, 0), V(45.5, 1.5, 0)),  # 34
    Part.LineSegment(V(45.5, 1.5, 0), V(42.5, 1.5, 0)),  # 35
    Part.LineSegment(V(42.5, 42, 0), V(42.5, 39, 0)),  # 36
    Part.LineSegment(V(42.5, 39, 0), V(45.5, 39, 0)),  # 37
    Part.LineSegment(V(45.5, 39, 0), V(45.5, 42, 0)),  # 38
    Part.LineSegment(V(45.5, 42, 0), V(42.5, 42, 0)),  # 39
    Part.LineSegment(V(27.5, 70.5, 0), V(27.5, 68, 0)),  # 40
    Part.LineSegment(V(27.5, 68, 0), V(30.5, 68, 0)),  # 41
    Part.LineSegment(V(30.5, 68, 0), V(30.5, 70.5, 0)),  # 42
    Part.LineSegment(V(30.5, 70.5, 0), V(27.5, 70.5, 0)),  # 43
    Part.LineSegment(V(-1.5, 70.5, 0), V(-1.5, 68, 0)),  # 44
    Part.LineSegment(V(-1.5, 68, 0), V(1.5, 68, 0)),  # 45
    Part.LineSegment(V(1.5, 68, 0), V(1.5, 70.5, 0)),  # 46
    Part.LineSegment(V(1.5, 70.5, 0), V(-1.5, 70.5, 0)),  # 47
], False)
sketch11.addConstraint([
    Sketcher.Constraint("Coincident", 0, 2, 1, 1),
    Sketcher.Constraint("Coincident", 1, 2, 2, 1),
    Sketcher.Constraint("Coincident", 2, 2, 3, 1),
    Sketcher.Constraint("Coincident", 3, 2, 0, 1),
    Sketcher.Constraint("Coincident", 4, 2, 5, 1),
    Sketcher.Constraint("Coincident", 5, 2, 6, 1),
    Sketcher.Constraint("Coincident", 6, 2, 7, 1),
    Sketcher.Constraint("Coincident", 7, 2, 4, 1),
    Sketcher.Constraint("Coincident", 8, 2, 9, 1),
    Sketcher.Constraint("Coincident", 9, 2, 10, 1),
    Sketcher.Constraint("Coincident", 10, 2, 11, 1),
    Sketcher.Constraint("Coincident", 11, 2, 8, 1),
    Sketcher.Constraint("Coincident", 12, 2, 13, 1),
    Sketcher.Constraint("Coincident", 13, 2, 14, 1),
    Sketcher.Constraint("Coincident", 14, 2, 15, 1),
    Sketcher.Constraint("Coincident", 15, 2, 12, 1),
    Sketcher.Constraint("Coincident", 16, 2, 17, 1),
    Sketcher.Constraint("Coincident", 17, 2, 18, 1),
    Sketcher.Constraint("Coincident", 18, 2, 19, 1),
    Sketcher.Constraint("Coincident", 19, 2, 16, 1),
    Sketcher.Constraint("Coincident", 20, 2, 21, 1),
    Sketcher.Constraint("Coincident", 21, 2, 22, 1),
    Sketcher.Constraint("Coincident", 22, 2, 23, 1),
    Sketcher.Constraint("Coincident", 23, 2, 20, 1),
    Sketcher.Constraint("Coincident", 24, 2, 25, 1),
    Sketcher.Constraint("Coincident", 25, 2, 26, 1),
    Sketcher.Constraint("Coincident", 26, 2, 27, 1),
    Sketcher.Constraint("Coincident", 27, 2, 24, 1),
    Sketcher.Constraint("Coincident", 28, 2, 29, 1),
    Sketcher.Constraint("Coincident", 29, 2, 30, 1),
    Sketcher.Constraint("Coincident", 30, 2, 31, 1),
    Sketcher.Constraint("Coincident", 31, 2, 28, 1),
    Sketcher.Constraint("Coincident", 32, 2, 33, 1),
    Sketcher.Constraint("Coincident", 33, 2, 34, 1),
    Sketcher.Constraint("Coincident", 34, 2, 35, 1),
    Sketcher.Constraint("Coincident", 35, 2, 32, 1),
    Sketcher.Constraint("Coincident", 36, 2, 37, 1),
    Sketcher.Constraint("Coincident", 37, 2, 38, 1),
    Sketcher.Constraint("Coincident", 38, 2, 39, 1),
    Sketcher.Constraint("Coincident", 39, 2, 36, 1),
    Sketcher.Constraint("Coincident", 40, 2, 41, 1),
    Sketcher.Constraint("Coincident", 41, 2, 42, 1),
    Sketcher.Constraint("Coincident", 42, 2, 43, 1),
    Sketcher.Constraint("Coincident", 43, 2, 40, 1),
    Sketcher.Constraint("Coincident", 44, 2, 45, 1),
    Sketcher.Constraint("Coincident", 45, 2, 46, 1),
    Sketcher.Constraint("Coincident", 46, 2, 47, 1),
    Sketcher.Constraint("Coincident", 47, 2, 44, 1),
    Sketcher.Constraint("Vertical", 0),
    Sketcher.Constraint("Horizontal", 1),
    Sketcher.Constraint("Vertical", 2),
    Sketcher.Constraint("Horizontal", 3),
    Sketcher.Constraint("Vertical", 4),
    Sketcher.Constraint("Horizontal", 5),
    Sketcher.Constraint("Vertical", 6),
    Sketcher.Constraint("Horizontal", 7),
    Sketcher.Constraint("Vertical", 8),
    Sketcher.Constraint("Horizontal", 9),
    Sketcher.Constraint("Vertical", 10),
    Sketcher.Constraint("Horizontal", 11),
    Sketcher.Constraint("Vertical", 12),
    Sketcher.Constraint("Horizontal", 13),
    Sketcher.Constraint("Vertical", 14),
    Sketcher.Constraint("Horizontal", 15),
    Sketcher.Constraint("Vertical", 16),
    Sketcher.Constraint("Horizontal", 17),
    Sketcher.Constraint("Vertical", 18),
    Sketcher.Constraint("Horizontal", 19),
    Sketcher.Constraint("Vertical", 20),
    Sketcher.Constraint("Horizontal", 21),
    Sketcher.Constraint("Vertical", 22),
    Sketcher.Constraint("Horizontal", 23),
    Sketcher.Constraint("Vertical", 24),
    Sketcher.Constraint("Horizontal", 25),
    Sketcher.Constraint("Vertical", 26),
    Sketcher.Constraint("Horizontal", 27),
    Sketcher.Constraint("Vertical", 28),
    Sketcher.Constraint("Horizontal", 29),
    Sketcher.Constraint("Vertical", 30),
    Sketcher.Constraint("Horizontal", 31),
    Sketcher.Constraint("Vertical", 32),
    Sketcher.Constraint("Horizontal", 33),
    Sketcher.Constraint("Vertical", 34),
    Sketcher.Constraint("Horizontal", 35),
    Sketcher.Constraint("Vertical", 36),
    Sketcher.Constraint("Horizontal", 37),
    Sketcher.Constraint("Vertical", 38),
    Sketcher.Constraint("Horizontal", 39),
    Sketcher.Constraint("Vertical", 40),
    Sketcher.Constraint("Horizontal", 41),
    Sketcher.Constraint("Vertical", 42),
    Sketcher.Constraint("Horizontal", 43),
    Sketcher.Constraint("Vertical", 44),
    Sketcher.Constraint("Horizontal", 45),
    Sketcher.Constraint("Vertical", 46),
    Sketcher.Constraint("Horizontal", 47),
    Sketcher.Constraint("Symmetric", 6, 2, 24, 2, -1, 1),
    Sketcher.Constraint("Symmetric", 4, 2, 26, 2, -1, 1),
    Sketcher.Constraint("Symmetric", 2, 2, 28, 2, -1, 1),
    Sketcher.Constraint("Symmetric", 0, 2, 30, 2, -1, 1),
    Sketcher.Constraint("Symmetric", 10, 2, 32, 2, -1, 1),
    Sketcher.Constraint("Symmetric", 8, 2, 34, 2, -1, 1),
    Sketcher.Constraint("Symmetric", 14, 2, 36, 2, -1, 1),
    Sketcher.Constraint("Symmetric", 12, 2, 38, 2, -1, 1),
    Sketcher.Constraint("Symmetric", 18, 2, 40, 2, -1, 1),
    Sketcher.Constraint("Symmetric", 16, 2, 42, 2, -1, 1),
    Sketcher.Constraint("Symmetric", 22, 2, 44, 2, -1, 1),
    Sketcher.Constraint("Symmetric", 20, 2, 46, 2, -1, 1),
    Sketcher.Constraint("Symmetric", 17, 2, 24, 2, -2),
    Sketcher.Constraint("Symmetric", 19, 2, 26, 2, -2),
    Sketcher.Constraint("Symmetric", 13, 2, 28, 2, -2),
    Sketcher.Constraint("Symmetric", 15, 2, 30, 2, -2),
    Sketcher.Constraint("Horizontal", 17, 2, 20, 2),
    Sketcher.Constraint("Horizontal", 19, 2, 22, 2),
    Sketcher.Constraint("Horizontal", 9, 2, 32, 2),
    Sketcher.Constraint("Vertical", 3, 2, 8, 2),
    Sketcher.Constraint("Vertical", 2, 2, 9, 2),
    Sketcher.Constraint("Vertical", 23, 2, 44, 2),
    Sketcher.Constraint("Equal", 3, 5),
    Sketcher.Constraint("Equal", 19, 21),
    Sketcher.Constraint("Equal", 47, 0),
    Sketcher.Constraint("Equal", 2, 8),
    Sketcher.Constraint("DistanceX", 1, 1, 1, 2, Q("3 mm")),
    Sketcher.Constraint("DistanceY", 4, 2, 4, 1, Q("2.5 mm")),
    Sketcher.Constraint("DistanceY", -1, 1, 0, 2, Q("39 mm")),
    Sketcher.Constraint("DistanceY", -1, 1, 4, 2, Q("68 mm")),
    Sketcher.Constraint("DistanceX", 2, 2, 4, 2, Q("12 mm")),
    Sketcher.Constraint("DistanceX", 17, 2, 20, 2, Q("26 mm")),
])
pad4 = body.newObject("PartDesign::Pad", "Pad003")
pad4.Profile = sketch11
pad4.Length = 33

doc.recompute()
